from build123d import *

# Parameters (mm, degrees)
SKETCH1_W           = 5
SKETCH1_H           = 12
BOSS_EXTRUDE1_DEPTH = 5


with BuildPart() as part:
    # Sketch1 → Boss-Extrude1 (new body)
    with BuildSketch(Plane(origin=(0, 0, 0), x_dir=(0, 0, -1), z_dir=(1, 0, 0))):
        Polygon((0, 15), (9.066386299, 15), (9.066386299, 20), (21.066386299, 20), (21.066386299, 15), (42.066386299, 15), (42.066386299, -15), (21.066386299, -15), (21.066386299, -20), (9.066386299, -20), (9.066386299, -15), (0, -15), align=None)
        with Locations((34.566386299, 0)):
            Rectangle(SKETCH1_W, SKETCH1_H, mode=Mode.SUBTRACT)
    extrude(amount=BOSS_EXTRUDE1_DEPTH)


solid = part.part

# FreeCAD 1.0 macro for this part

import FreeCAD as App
import Part
import Sketcher

V = App.Vector
Q = App.Units.Quantity


def add_polygon(sketch, points):
    """Adds a closed chain of lines whose ends are joined by coincident constraints."""
    first, n = sketch.GeometryCount, len(points)
    for a, b in zip(points, points[1:] + points[:1]):
        sketch.addGeometry(Part.LineSegment(App.Vector(*a, 0), App.Vector(*b, 0)), False)
    for i in range(n):
        sketch.addConstraint(Sketcher.Constraint("Coincident", first + i, 2, first + (i + 1) % n, 1))

doc = App.newDocument("Part")
body = doc.addObject("PartDesign::Body", "Body")

# Sketch on YZ plane
sketch1 = body.newObject("Sketcher::SketchObject", "Sketch")
sketch1.AttachmentSupport = (doc.getObject("YZ_Plane"), [""])
sketch1.MapMode = "FlatFace"
add_polygon(sketch1, [(15, -9), (15, 0), (-15, 0), (-15, -9), (-20, -9), (-20, -21), (-15, -21), (-15, -42), (15, -42), (15, -21), (20, -21), (20, -9)])  # lines 0-11
add_polygon(sketch1, [(-6, -32), (6, -32), (6, -37), (-6, -37)])  # lines 12-15
sketch1.addConstraint([
    Sketcher.Constraint("Vertical", 0),
    Sketcher.Constraint("Horizontal", 1),
    Sketcher.Constraint("Vertical", 2),
    Sketcher.Constraint("Horizontal", 3),
    Sketcher.Constraint("Vertical", 4),
    Sketcher.Constraint("Horizontal", 5),
    Sketcher.Constraint("Vertical", 6),
    Sketcher.Constraint("Horizontal", 7),
    Sketcher.Constraint("Vertical", 8),
    Sketcher.Constraint("Horizontal", 9),
    Sketcher.Constraint("Vertical", 10),
    Sketcher.Constraint("Horizontal", 11),
    Sketcher.Constraint("Horizontal", 12),
    Sketcher.Constraint("Vertical", 13),
    Sketcher.Constraint("Horizontal", 14),
    Sketcher.Constraint("Vertical", 15),
    Sketcher.Constraint("Symmetric", 0, 2, 1, 2, -1, 1),
    Sketcher.Constraint("Symmetric", 5, 2, 8, 2, -2),
    Sketcher.Constraint("Symmetric", 3, 2, 10, 2, -2),
    Sketcher.Constraint("Vertical", 2, 2, 5, 2),
    Sketcher.Constraint("Equal", 14, 4),
    Sketcher.Constraint("Equal", 11, 13),
    Sketcher.Constraint("DistanceX", 1, 2, 1, 1, Q("30 mm")),
    Sketcher.Constraint("DistanceX", 3, 2, 3, 1, Q("5 mm")),
    Sketcher.Constraint("DistanceX", 12, 1, 12, 2, Q("12 mm")),
    Sketcher.Constraint("DistanceY", 6, 2, 6, 1, Q("21 mm")),
    Sketcher.Constraint("DistanceX", -1, 1, 12, 2, Q("6 mm")),
    Sketcher.Constraint("DistanceY", 7, 2, 12, 2, Q("10 mm")),
    Sketcher.Constraint("DistanceY", 0, 1, 0, 2, Q("9.066386 mm")),
])
pad1 = body.newObject("PartDesign::Pad", "Pad")
pad1.Profile = sketch1
pad1.Length = 5

doc.recompute()
